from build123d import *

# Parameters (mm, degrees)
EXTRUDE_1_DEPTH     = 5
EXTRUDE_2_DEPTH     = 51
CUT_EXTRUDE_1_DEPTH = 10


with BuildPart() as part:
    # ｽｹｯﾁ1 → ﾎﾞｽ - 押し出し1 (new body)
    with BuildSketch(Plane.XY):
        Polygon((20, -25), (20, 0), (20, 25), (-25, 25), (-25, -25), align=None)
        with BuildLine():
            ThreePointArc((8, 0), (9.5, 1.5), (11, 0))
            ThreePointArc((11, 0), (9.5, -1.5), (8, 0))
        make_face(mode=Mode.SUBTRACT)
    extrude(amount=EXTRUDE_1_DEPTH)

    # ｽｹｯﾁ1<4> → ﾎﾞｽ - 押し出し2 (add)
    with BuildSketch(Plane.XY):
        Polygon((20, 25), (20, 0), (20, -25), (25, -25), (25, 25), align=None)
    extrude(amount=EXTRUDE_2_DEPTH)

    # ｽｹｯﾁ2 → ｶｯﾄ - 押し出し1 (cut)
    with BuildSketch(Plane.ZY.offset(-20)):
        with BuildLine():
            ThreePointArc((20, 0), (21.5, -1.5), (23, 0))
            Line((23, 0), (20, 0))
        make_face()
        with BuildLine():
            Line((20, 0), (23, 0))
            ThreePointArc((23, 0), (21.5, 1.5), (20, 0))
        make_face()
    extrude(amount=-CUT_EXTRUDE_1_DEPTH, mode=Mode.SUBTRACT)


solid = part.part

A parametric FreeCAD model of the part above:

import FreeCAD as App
import Part
import Sketcher
from FreeCAD import Vector
Q = App.Units.Quantity


def add_polygon(sketch, points):
    """Adds a closed chain of lines whose ends are joined by coincident constraints."""
    first, n = sketch.GeometryCount, len(points)
    for a, b in zip(points, points[1:] + points[:1]):
        sketch.addGeometry(Part.LineSegment(App.Vector(*a, 0), App.Vector(*b, 0)), False)
    for i in range(n):
        sketch.addConstraint(Sketcher.Constraint("Coincident", first + i, 2, first + (i + 1) % n, 1))

doc = App.newDocument("Part")
body = doc.addObject("PartDesign::Body", "Body")

sketch1 = body.newObject("Sketcher::SketchObject", "Sketch")
sketch1.AttachmentSupport = (doc.getObject("XY_Plane"), [""])
sketch1.MapMode = "FlatFace"
add_polygon(sketch1, [(20, -25), (20, 25), (-25, 25), (-25, -25)])
sketch1.addGeometry(Part.Circle(Vector(9.5, 0, 0), Vector(0, 0, 1), 1.5), False)
sketch1.addConstraint([
    Sketcher.Constraint("Vertical", 0),
    Sketcher.Constraint("Horizontal", 1),
    Sketcher.Constraint("Vertical", 2),
    Sketcher.Constraint("Horizontal", 3),
    Sketcher.Constraint("PointOnObject", 4, 3, -1),
    Sketcher.Constraint("Diameter", 4, Q("3 mm")),
    Sketcher.Constraint("DistanceX", 1, 2, 1, 1, Q("45 mm")),
    Sketcher.Constraint("DistanceY", 0, 1, 0, 2, Q("50 mm")),
    Sketcher.Constraint("DistanceX", -1, 1, 0, 2, Q("20 mm")),
    Sketcher.Constraint("DistanceY", -1, 1, 0, 2, Q("25 mm")),
    Sketcher.Constraint("DistanceX", -1, 1, 4, 3, Q("9.5 mm")),
])
pad1 = body.newObject("PartDesign::Pad", "Pad")
pad1.Profile = sketch1
pad1.Length = 5

sketch2 = body.newObject("Sketcher::SketchObject", "Sketch001")
sketch2.AttachmentSupport = (doc.getObject("XY_Plane"), [""])
sketch2.MapMode = "FlatFace"
add_polygon(sketch2, [(20, 25), (20, -25), (25, -25), (25, 25)])
sketch2.addConstraint([
    Sketcher.Constraint("Vertical", 0),
    Sketcher.Constraint("Horizontal", 1),
    Sketcher.Constraint("Vertical", 2),
    Sketcher.Constraint("Horizontal", 3),
    Sketcher.Constraint("DistanceX", 1, 1, 1, 2, Q("5 mm")),
    Sketcher.Constraint("DistanceY", 0, 2, 0, 1, Q("50 mm")),
    Sketcher.Constraint("DistanceX", -1, 1, 0, 2, Q("20 mm")),
    Sketcher.Constraint("DistanceY", 0, 2, -1, 1, Q("25 mm")),
])
pad2 = body.newObject("PartDesign::Pad", "Pad001")
pad2.Profile = sketch2
pad2.Length = 51

sketch3 = body.newObject("Sketcher::SketchObject", "Sketch002")
sketch3.AttachmentSupport = (doc.getObject("YZ_Plane"), [""])
sketch3.MapMode = "FlatFace"
sketch3.AttachmentOffset = App.Placement(Vector(0, 0, 20), App.Rotation())
sketch3.addGeometry(Part.Circle(Vector(0, 21.5, 0), Vector(0, 0, 1), 1.5), False)
sketch3.addConstraint([
    Sketcher.Constraint("PointOnObject", 0, 3, -2),
    Sketcher.Constraint("Diameter", 0, Q("3 mm")),
    Sketcher.Constraint("DistanceY", -1, 1, 0, 3, Q("21.5 mm")),
])
pocket1 = body.newObject("PartDesign::Pocket", "Pocket")
pocket1.Profile = sketch3
pocket1.Length = 10
pocket1.Reversed = True

doc.recompute()
